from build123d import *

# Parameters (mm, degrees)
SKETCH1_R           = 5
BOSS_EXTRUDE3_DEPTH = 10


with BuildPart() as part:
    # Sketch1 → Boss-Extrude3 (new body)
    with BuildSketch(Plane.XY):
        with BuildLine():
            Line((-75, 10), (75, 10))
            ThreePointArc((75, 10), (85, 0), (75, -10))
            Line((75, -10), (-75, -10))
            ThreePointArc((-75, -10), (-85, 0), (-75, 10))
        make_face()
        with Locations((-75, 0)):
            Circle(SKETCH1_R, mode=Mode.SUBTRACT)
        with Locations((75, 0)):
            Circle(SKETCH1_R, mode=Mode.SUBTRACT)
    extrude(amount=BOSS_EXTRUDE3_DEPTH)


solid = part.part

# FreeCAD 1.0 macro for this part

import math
import FreeCAD as App
import Part
import Sketcher
from FreeCAD import Vector
Q = App.Units.Quantity

doc = App.newDocument("Part")
body = doc.addObject("PartDesign::Body", "Body")

# Sketch on XY plane
sketch1 = body.newObject("Sketcher::SketchObject", "Sketch")
sketch1.AttachmentSupport = (doc.getObject("XY_Plane"), [""])
sketch1.MapMode = "FlatFace"
sketch1.addGeometry(Part.LineSegment(Vector(75, 10, 0), Vector(-75, 10, 0)), False)
sketch1.addGeometry(Part.ArcOfCircle(Part.Circle(Vector(-75, 0, 0), Vector(0, 0, 1), 10), math.radians(90), math.radians(270)), False)
sketch1.addGeometry(Part.LineSegment(Vector(-75, -10, 0), Vector(75, -10, 0)), False)
sketch1.addGeometry(Part.ArcOfCircle(Part.Circle(Vector(75, 0, 0), Vector(0, 0, 1), 10), math.radians(-90), math.radians(90)), False)
sketch1.addGeometry(Part.Circle(Vector(75, 0, 0), Vector(0, 0, 1), 5), False)
sketch1.addGeometry(Part.Circle(Vector(-75, 0, 0), Vector(0, 0, 1), 5), False)
sketch1.addConstraint(Sketcher.Constraint("Tangent", 0, 2, 1, 1))
sketch1.addConstraint(Sketcher.Constraint("Tangent", 1, 2, 2, 1))
sketch1.addConstraint(Sketcher.Constraint("Tangent", 2, 2, 3, 1))
sketch1.addConstraint(Sketcher.Constraint("Tangent", 3, 2, 0, 1))
sketch1.addConstraint(Sketcher.Constraint("Horizontal", 0))
sketch1.addConstraint(Sketcher.Constraint("Horizontal", 2))
sketch1.addConstraint(Sketcher.Constraint("Coincident", 4, 3, 3, 3))
sketch1.addConstraint(Sketcher.Constraint("Coincident", 5, 3, 1, 3))
sketch1.addConstraint(Sketcher.Constraint("Equal", 4, 5))
sketch1.addConstraint(Sketcher.Constraint("Symmetric", 1, 3, 3, 3, -1, 1))
sketch1.addConstraint(Sketcher.Constraint("Diameter", 4, Q("10 mm")))
sketch1.addConstraint(Sketcher.Constraint("Radius", 1, Q("10 mm")))
sketch1.addConstraint(Sketcher.Constraint("DistanceX", 0, 2, 0, 1, Q("150 mm")))
pad1 = body.newObject("PartDesign::Pad", "Pad")
pad1.Profile = sketch1
pad1.Length = 10

doc.recompute()
